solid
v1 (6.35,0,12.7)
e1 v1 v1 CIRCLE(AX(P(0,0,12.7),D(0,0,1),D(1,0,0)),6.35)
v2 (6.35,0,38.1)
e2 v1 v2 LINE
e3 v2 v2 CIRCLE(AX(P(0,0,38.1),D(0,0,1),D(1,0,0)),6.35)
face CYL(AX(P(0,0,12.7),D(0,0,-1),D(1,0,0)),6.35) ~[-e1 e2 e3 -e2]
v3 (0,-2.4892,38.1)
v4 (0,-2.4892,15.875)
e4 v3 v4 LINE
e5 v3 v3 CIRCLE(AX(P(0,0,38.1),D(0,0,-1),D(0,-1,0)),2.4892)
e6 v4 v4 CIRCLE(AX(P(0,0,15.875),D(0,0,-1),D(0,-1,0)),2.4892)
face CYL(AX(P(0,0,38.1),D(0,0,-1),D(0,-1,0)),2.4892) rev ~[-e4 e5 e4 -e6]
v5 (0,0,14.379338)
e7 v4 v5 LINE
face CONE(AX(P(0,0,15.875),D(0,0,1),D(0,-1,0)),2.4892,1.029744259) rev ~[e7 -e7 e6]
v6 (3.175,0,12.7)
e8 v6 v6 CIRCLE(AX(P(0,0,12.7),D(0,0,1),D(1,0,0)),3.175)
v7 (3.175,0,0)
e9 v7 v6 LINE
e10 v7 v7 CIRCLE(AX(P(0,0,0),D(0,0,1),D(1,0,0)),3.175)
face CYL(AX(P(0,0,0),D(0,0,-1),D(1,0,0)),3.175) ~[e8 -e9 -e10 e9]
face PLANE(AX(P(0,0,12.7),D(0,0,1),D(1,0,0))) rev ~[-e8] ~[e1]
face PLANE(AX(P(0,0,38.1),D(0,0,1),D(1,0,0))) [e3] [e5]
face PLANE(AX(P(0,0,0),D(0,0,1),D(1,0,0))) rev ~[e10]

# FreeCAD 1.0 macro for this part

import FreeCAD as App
import Part
import Sketcher
Q = App.Units.Quantity

doc = App.newDocument("Part")
params = doc.addObject("Spreadsheet::Sheet", "Params")
for row, (alias, value) in enumerate([
    ("sketch1_diameter", "0.25 in"),
    ("pad1_length", "0.5 in"),
    ("sketch2_diameter", "0.5 in"),
    ("pad2_length", "1 in"),
    ("sketch3_diameter", "0.196 in"),
    ("hole_diameter", "0.196 in"),
    ("hole_depth", "0.875 in"),
], start=1):
    params.set(f"A{row}", alias)
    params.set(f"B{row}", "=" + value)
    params.setAlias(f"B{row}", alias)

body = doc.addObject("PartDesign::Body", "Body")

sketch1 = body.newObject("Sketcher::SketchObject", "Sketch")
sketch1.AttachmentSupport = (doc.getObject("XY_Plane"), [""])
sketch1.MapMode = "FlatFace"
sketch1.addGeometry(Part.Circle(App.Vector(0, 0, 0), App.Vector(0, 0, 1), 3.2), False)
sketch1.addConstraint(Sketcher.Constraint("Coincident", 0, 3, -1, 1))
sketch1.addConstraint(Sketcher.Constraint("Diameter", 0, Q("0.25 in")))
sketch1.setExpression("Constraints[1]", "Params.sketch1_diameter")
pad1 = body.newObject("PartDesign::Pad", "Pad")
pad1.Profile = sketch1
pad1.setExpression("Length", "Params.pad1_length")

sketch2 = body.newObject("Sketcher::SketchObject", "Sketch001")
sketch2.AttachmentSupport = (doc.getObject("XY_Plane"), [""])
sketch2.MapMode = "FlatFace"
sketch2.AttachmentOffset = App.Placement(App.Vector(0, 0, 0.5 * 25.4), App.Rotation())
sketch2.addGeometry(Part.Circle(App.Vector(0, 0, 0), App.Vector(0, 0, 1), 6), False)
sketch2.addConstraint(Sketcher.Constraint("Coincident", 0, 3, -1, 1))
sketch2.addConstraint(Sketcher.Constraint("Diameter", 0, Q("0.5 in")))
sketch2.setExpression("Constraints[1]", "Params.sketch2_diameter")
pad2 = body.newObject("PartDesign::Pad", "Pad001")
pad2.Profile = sketch2
pad2.setExpression("Length", "Params.pad2_length")

sketch3 = body.newObject("Sketcher::SketchObject", "Sketch002")
sketch3.AttachmentSupport = (doc.getObject("XY_Plane"), [""])
sketch3.MapMode = "FlatFace"
sketch3.AttachmentOffset = App.Placement(App.Vector(0, 0, 1.5 * 25.4), App.Rotation())
sketch3.addGeometry(Part.Circle(App.Vector(0, 0, 0), App.Vector(0, 0, 1), 2.5), False)
sketch3.addConstraint(Sketcher.Constraint("Coincident", 0, 3, -1, 1))
sketch3.addConstraint(Sketcher.Constraint("Diameter", 0, Q("0.196 in")))
sketch3.setExpression("Constraints[1]", "Params.sketch3_diameter")
doc.recompute()
hole = body.newObject("PartDesign::Hole", "Hole")
hole.Profile = sketch3
hole.ThreadType = "None"
hole.setExpression("Diameter", "Params.hole_diameter")
hole.DepthType = "Dimension"
hole.setExpression("Depth", "Params.hole_depth")
hole.DrillPoint = "Angled"
hole.DrillPointAngle = 118

doc.recompute()
